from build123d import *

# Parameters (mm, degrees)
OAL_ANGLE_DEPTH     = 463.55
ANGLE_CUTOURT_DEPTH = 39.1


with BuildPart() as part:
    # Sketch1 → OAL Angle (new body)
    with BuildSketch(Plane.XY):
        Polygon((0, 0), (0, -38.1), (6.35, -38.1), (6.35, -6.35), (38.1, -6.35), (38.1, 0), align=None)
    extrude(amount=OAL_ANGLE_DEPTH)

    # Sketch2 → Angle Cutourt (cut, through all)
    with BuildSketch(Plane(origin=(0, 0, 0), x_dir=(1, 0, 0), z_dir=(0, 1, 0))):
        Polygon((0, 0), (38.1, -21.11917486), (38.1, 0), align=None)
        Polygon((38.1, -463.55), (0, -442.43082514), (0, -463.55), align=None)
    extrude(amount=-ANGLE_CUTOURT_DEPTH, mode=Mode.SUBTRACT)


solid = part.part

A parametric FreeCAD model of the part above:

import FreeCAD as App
import Part
import Sketcher
from FreeCAD import Vector
Q = App.Units.Quantity

doc = App.newDocument("Part")
params = doc.addObject("Spreadsheet::Sheet", "Params")
for row, (alias, value) in enumerate([
    ("sketch1_width", "1.5 in"),
    ("sketch1_width2", "0.25 in"),
    ("pad1_length", "18.25 in"),
    ("sketch2_width", "1.5 in"),
], start=1):
    params.set(f"A{row}", alias)
    params.set(f"B{row}", "=" + value)
    params.setAlias(f"B{row}", alias)

body = doc.addObject("PartDesign::Body", "Body")

sketch1 = body.newObject("Sketcher::SketchObject", "Sketch")
sketch1.AttachmentSupport = (doc.getObject("XY_Plane"), [""])
sketch1.MapMode = "FlatFace"
sketch1.addGeometry(Part.LineSegment(Vector(0, 0, 0), Vector(0, -38, 0)), False)
sketch1.addGeometry(Part.LineSegment(Vector(0, -38, 0), Vector(6, -38, 0)), False)
sketch1.addGeometry(Part.LineSegment(Vector(6, -38, 0), Vector(6, -6, 0)), False)
sketch1.addGeometry(Part.LineSegment(Vector(6, -6, 0), Vector(38, -6, 0)), False)
sketch1.addGeometry(Part.LineSegment(Vector(38, -6, 0), Vector(38, 0, 0)), False)
sketch1.addGeometry(Part.LineSegment(Vector(38, 0, 0), Vector(0, 0, 0)), False)
sketch1.addConstraint(Sketcher.Constraint("Coincident", 0, 2, 1, 1))
sketch1.addConstraint(Sketcher.Constraint("Coincident", 1, 2, 2, 1))
sketch1.addConstraint(Sketcher.Constraint("Coincident", 2, 2, 3, 1))
sketch1.addConstraint(Sketcher.Constraint("Coincident", 3, 2, 4, 1))
sketch1.addConstraint(Sketcher.Constraint("Coincident", 4, 2, 5, 1))
sketch1.addConstraint(Sketcher.Constraint("Coincident", 5, 2, 0, 1))
sketch1.addConstraint(Sketcher.Constraint("Vertical", 0))
sketch1.addConstraint(Sketcher.Constraint("Horizontal", 1))
sketch1.addConstraint(Sketcher.Constraint("Vertical", 2))
sketch1.addConstraint(Sketcher.Constraint("Horizontal", 3))
sketch1.addConstraint(Sketcher.Constraint("Vertical", 4))
sketch1.addConstraint(Sketcher.Constraint("Horizontal", 5))
sketch1.addConstraint(Sketcher.Constraint("Coincident", 5, 2, -1, 1))
sketch1.addConstraint(Sketcher.Constraint("Equal", 5, 0))
sketch1.addConstraint(Sketcher.Constraint("Equal", 3, 2))
sketch1.addConstraint(Sketcher.Constraint("DistanceX", 5, 2, 5, 1, Q("1.5 in")))
sketch1.addConstraint(Sketcher.Constraint("DistanceX", 1, 1, 1, 2, Q("0.25 in")))
sketch1.setExpression("Constraints[15]", "Params.sketch1_width")
sketch1.setExpression("Constraints[16]", "Params.sketch1_width2")
pad1 = body.newObject("PartDesign::Pad", "Pad")
pad1.Profile = sketch1
pad1.setExpression("Length", "Params.pad1_length")

sketch2 = body.newObject("Sketcher::SketchObject", "Sketch001")
sketch2.AttachmentSupport = (doc.getObject("XZ_Plane"), [""])
sketch2.MapMode = "FlatFace"
sketch2.addGeometry(Part.LineSegment(Vector(0, 0, 0), Vector(38, 21, 0)), False)
sketch2.addGeometry(Part.LineSegment(Vector(38, 21, 0), Vector(38, 0, 0)), False)
sketch2.addGeometry(Part.LineSegment(Vector(38, 0, 0), Vector(0, 0, 0)), False)
sketch2.addGeometry(Part.LineSegment(Vector(38, 464, 0), Vector(0, 442, 0)), False)
sketch2.addGeometry(Part.LineSegment(Vector(0, 442, 0), Vector(0, 464, 0)), False)
sketch2.addGeometry(Part.LineSegment(Vector(0, 464, 0), Vector(38, 464, 0)), False)
sketch2.addConstraint(Sketcher.Constraint("Coincident", 0, 2, 1, 1))
sketch2.addConstraint(Sketcher.Constraint("Coincident", 1, 2, 2, 1))
sketch2.addConstraint(Sketcher.Constraint("Coincident", 2, 2, 0, 1))
sketch2.addConstraint(Sketcher.Constraint("Coincident", 3, 2, 4, 1))
sketch2.addConstraint(Sketcher.Constraint("Coincident", 4, 2, 5, 1))
sketch2.addConstraint(Sketcher.Constraint("Coincident", 5, 2, 3, 1))
sketch2.addConstraint(Sketcher.Constraint("Vertical", 1))
sketch2.addConstraint(Sketcher.Constraint("Horizontal", 2))
sketch2.addConstraint(Sketcher.Constraint("Vertical", 4))
sketch2.addConstraint(Sketcher.Constraint("Horizontal", 5))
sketch2.addConstraint(Sketcher.Constraint("Coincident", 2, 2, -1, 1))
sketch2.addConstraint(Sketcher.Constraint("PointOnObject", 3, 2, -2))
sketch2.addConstraint(Sketcher.Constraint("Parallel", 0, 3))
sketch2.addConstraint(Sketcher.Constraint("Vertical", 1, 2, 5, 2))
sketch2.addConstraint(Sketcher.Constraint("DistanceX", 2, 2, 2, 1, Q("1.5 in")))
sketch2.addConstraint(Sketcher.Constraint("Angle", 0, Q("29 deg")))
sketch2.addConstraint(Sketcher.Constraint("DistanceY", -1, 1, 4, 2, Q("18.25 in")))
sketch2.setExpression("Constraints[14]", "Params.sketch2_width")
pocket1 = body.newObject("PartDesign::Pocket", "Pocket")
pocket1.Profile = sketch2
pocket1.Type = "ThroughAll"
pocket1.Reversed = True

doc.recompute()
